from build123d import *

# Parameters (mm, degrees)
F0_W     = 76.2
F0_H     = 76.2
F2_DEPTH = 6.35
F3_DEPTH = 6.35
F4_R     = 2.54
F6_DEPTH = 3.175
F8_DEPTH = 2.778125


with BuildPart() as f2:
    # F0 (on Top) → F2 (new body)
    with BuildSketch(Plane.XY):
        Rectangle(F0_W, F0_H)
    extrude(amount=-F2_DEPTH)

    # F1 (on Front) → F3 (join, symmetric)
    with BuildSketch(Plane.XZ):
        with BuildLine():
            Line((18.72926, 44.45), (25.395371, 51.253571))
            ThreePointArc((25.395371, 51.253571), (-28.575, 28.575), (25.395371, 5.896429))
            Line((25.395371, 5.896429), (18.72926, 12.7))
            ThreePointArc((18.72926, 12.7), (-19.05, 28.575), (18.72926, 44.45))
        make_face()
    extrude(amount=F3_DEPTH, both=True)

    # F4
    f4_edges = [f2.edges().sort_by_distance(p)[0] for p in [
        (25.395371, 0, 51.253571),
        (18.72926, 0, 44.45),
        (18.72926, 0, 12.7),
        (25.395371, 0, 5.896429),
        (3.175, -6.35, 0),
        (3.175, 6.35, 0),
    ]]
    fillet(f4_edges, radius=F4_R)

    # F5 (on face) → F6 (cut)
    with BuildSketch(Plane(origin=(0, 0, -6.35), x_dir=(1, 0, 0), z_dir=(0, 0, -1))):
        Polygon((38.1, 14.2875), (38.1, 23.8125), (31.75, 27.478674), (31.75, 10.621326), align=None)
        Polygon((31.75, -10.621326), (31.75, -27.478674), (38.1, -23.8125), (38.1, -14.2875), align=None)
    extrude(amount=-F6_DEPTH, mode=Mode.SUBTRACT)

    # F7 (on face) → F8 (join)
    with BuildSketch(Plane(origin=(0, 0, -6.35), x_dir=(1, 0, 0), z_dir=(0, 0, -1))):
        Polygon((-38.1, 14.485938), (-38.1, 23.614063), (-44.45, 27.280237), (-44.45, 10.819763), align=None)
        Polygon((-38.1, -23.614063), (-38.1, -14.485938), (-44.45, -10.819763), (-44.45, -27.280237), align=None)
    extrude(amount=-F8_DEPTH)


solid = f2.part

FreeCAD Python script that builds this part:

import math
import FreeCAD as App
import Part
import Sketcher

V = App.Vector
Q = App.Units.Quantity


def edges_at(feature, points):
    """Names of the edges that pass closest to the given points."""
    edges = feature.Shape.Edges
    near = lambda p: min(range(len(edges)), key=lambda i: edges[i].distToShape(Part.Vertex(*p))[0])
    return sorted({f"Edge{near(p) + 1}" for p in points})

doc = App.newDocument("Part")
body = doc.addObject("PartDesign::Body", "Body")

# Sketch on XY plane
sketch1 = body.newObject("Sketcher::SketchObject", "Sketch")
sketch1.AttachmentSupport = (doc.getObject("XY_Plane"), [""])
sketch1.MapMode = "FlatFace"
sketch1.addGeometry(Part.LineSegment(V(-38, 38, 0), V(-38, -38, 0)), False)
sketch1.addGeometry(Part.LineSegment(V(-38, -38, 0), V(38, -38, 0)), False)
sketch1.addGeometry(Part.LineSegment(V(38, -38, 0), V(38, 38, 0)), False)
sketch1.addGeometry(Part.LineSegment(V(38, 38, 0), V(-38, 38, 0)), False)
sketch1.addConstraint(Sketcher.Constraint("Coincident", 0, 2, 1, 1))
sketch1.addConstraint(Sketcher.Constraint("Coincident", 1, 2, 2, 1))
sketch1.addConstraint(Sketcher.Constraint("Coincident", 2, 2, 3, 1))
sketch1.addConstraint(Sketcher.Constraint("Coincident", 3, 2, 0, 1))
sketch1.addConstraint(Sketcher.Constraint("Vertical", 0))
sketch1.addConstraint(Sketcher.Constraint("Horizontal", 1))
sketch1.addConstraint(Sketcher.Constraint("Vertical", 2))
sketch1.addConstraint(Sketcher.Constraint("Horizontal", 3))
sketch1.addConstraint(Sketcher.Constraint("Symmetric", 0, 2, 2, 2, -1, 1))
sketch1.addConstraint(Sketcher.Constraint("Equal", 3, 0))
sketch1.addConstraint(Sketcher.Constraint("DistanceX", 1, 1, 1, 2, Q("3 in")))
pad1 = body.newObject("PartDesign::Pad", "Pad")
pad1.Profile = sketch1
pad1.Length = Q("0.25 in")
pad1.Reversed = True

# Sketch on XZ plane
sketch2 = body.newObject("Sketcher::SketchObject", "Sketch001")
sketch2.AttachmentSupport = (doc.getObject("XZ_Plane"), [""])
sketch2.MapMode = "FlatFace"
sketch2.addGeometry(Part.LineSegment(V(19, 44, 0), V(25, 51, 0)), False)
sketch2.addGeometry(Part.ArcOfCircle(Part.Circle(V(3, 29, 0), V(0, 0, 1), 32), math.radians(46), math.radians(314)), False)
sketch2.addGeometry(Part.LineSegment(V(25, 6, 0), V(19, 13, 0)), False)
sketch2.addGeometry(Part.ArcOfCircle(Part.Circle(V(3, 29, 0), V(0, 0, 1), 22), math.radians(46), math.radians(314)), False)
sketch2.addConstraint(Sketcher.Constraint("Coincident", 0, 2, 1, 1))
sketch2.addConstraint(Sketcher.Constraint("Coincident", 1, 2, 2, 1))
sketch2.addConstraint(Sketcher.Constraint("Coincident", 2, 2, 3, 2))
sketch2.addConstraint(Sketcher.Constraint("Coincident", 3, 1, 0, 1))
sketch2.addConstraint(Sketcher.Constraint("Coincident", 3, 3, 1, 3))
sketch2.addConstraint(Sketcher.Constraint("Vertical", 0, 2, 1, 2))
sketch2.addConstraint(Sketcher.Constraint("Vertical", 2, 2, 3, 1))
sketch2.addConstraint(Sketcher.Constraint("Radius", 1, Q("1.25 in")))
sketch2.addConstraint(Sketcher.Constraint("Radius", 3, Q("0.875 in")))
sketch2.addConstraint(Sketcher.Constraint("DistanceY", -1, 1, 2, 2, Q("0.5 in")))
sketch2.addConstraint(Sketcher.Constraint("DistanceY", -1, 1, 3, 1, Q("1.75 in")))
sketch2.addConstraint(Sketcher.Constraint("DistanceX", -1, 1, 1, 3, Q("0.125 in")))
sketch2.addConstraint(Sketcher.Constraint("DistanceX", -1, 1, 0, 2, Q("25.395371 mm")))
pad2 = body.newObject("PartDesign::Pad", "Pad001")
pad2.Profile = sketch2
pad2.Length = Q("0.5 in")
pad2.Midplane = True
doc.recompute()

fillet = body.newObject("PartDesign::Fillet", "Fillet")
fillet.Base = (pad2, edges_at(pad2, [
    (25.395, 0, 51.254),
    (18.729, 0, 44.45),
    (18.729, 0, 12.7),
    (25.395, 0, 5.896),
    (3.175, -6.35, 0),
    (3.175, 6.35, 0),
]))
fillet.Radius = Q("0.1 in")

# Sketch on XY plane
sketch3 = body.newObject("Sketcher::SketchObject", "Sketch002")
sketch3.AttachmentSupport = (doc.getObject("XY_Plane"), [""])
sketch3.MapMode = "FlatFace"
sketch3.AttachmentOffset = App.Placement(V(0, 0, -0.25 * 25.4), App.Rotation())
sketch3.addGeometry(Part.LineSegment(V(38, -14, 0), V(38, -24, 0)), False)
sketch3.addGeometry(Part.LineSegment(V(38, -24, 0), V(32, -27, 0)), False)
sketch3.addGeometry(Part.LineSegment(V(32, -27, 0), V(32, -11, 0)), False)
sketch3.addGeometry(Part.LineSegment(V(32, -11, 0), V(38, -14, 0)), False)
sketch3.addGeometry(Part.LineSegment(V(32, 11, 0), V(32, 27, 0)), False)
sketch3.addGeometry(Part.LineSegment(V(32, 27, 0), V(38, 24, 0)), False)
sketch3.addGeometry(Part.LineSegment(V(38, 24, 0), V(38, 14, 0)), False)
sketch3.addGeometry(Part.LineSegment(V(38, 14, 0), V(32, 11, 0)), False)
sketch3.addConstraint(Sketcher.Constraint("Coincident", 0, 2, 1, 1))
sketch3.addConstraint(Sketcher.Constraint("Coincident", 1, 2, 2, 1))
sketch3.addConstraint(Sketcher.Constraint("Coincident", 2, 2, 3, 1))
sketch3.addConstraint(Sketcher.Constraint("Coincident", 3, 2, 0, 1))
sketch3.addConstraint(Sketcher.Constraint("Coincident", 4, 2, 5, 1))
sketch3.addConstraint(Sketcher.Constraint("Coincident", 5, 2, 6, 1))
sketch3.addConstraint(Sketcher.Constraint("Coincident", 6, 2, 7, 1))
sketch3.addConstraint(Sketcher.Constraint("Coincident", 7, 2, 4, 1))
sketch3.addConstraint(Sketcher.Constraint("Vertical", 0))
sketch3.addConstraint(Sketcher.Constraint("Vertical", 2))
sketch3.addConstraint(Sketcher.Constraint("Vertical", 4))
sketch3.addConstraint(Sketcher.Constraint("Vertical", 6))
sketch3.addConstraint(Sketcher.Constraint("Symmetric", 1, 2, 4, 2, -1))
sketch3.addConstraint(Sketcher.Constraint("Symmetric", 0, 2, 5, 2, -1))
sketch3.addConstraint(Sketcher.Constraint("Parallel", 3, 5))
sketch3.addConstraint(Sketcher.Constraint("Parallel", 1, 7))
sketch3.addConstraint(Sketcher.Constraint("Equal", 2, 4))
sketch3.addConstraint(Sketcher.Constraint("Angle", 1, Q("-150.000001 deg")))
sketch3.addConstraint(Sketcher.Constraint("DistanceX", -1, 1, 0, 2, Q("1.5 in")))
sketch3.addConstraint(Sketcher.Constraint("DistanceY", 2, 2, 4, 2, Q("1.5 in")))
sketch3.addConstraint(Sketcher.Constraint("DistanceY", 0, 2, 0, 1, Q("0.375 in")))
sketch3.addConstraint(Sketcher.Constraint("DistanceX", -1, 1, 1, 2, Q("1.25 in")))
pocket1 = body.newObject("PartDesign::Pocket", "Pocket")
pocket1.Profile = sketch3
pocket1.Length = Q("0.125 in")
pocket1.Reversed = True

# Sketch on XY plane
sketch4 = body.newObject("Sketcher::SketchObject", "Sketch003")
sketch4.AttachmentSupport = (doc.getObject("XY_Plane"), [""])
sketch4.MapMode = "FlatFace"
sketch4.AttachmentOffset = App.Placement(V(0, 0, -0.25 * 25.4), App.Rotation())
sketch4.addGeometry(Part.LineSegment(V(-38, -14, 0), V(-38, -24, 0)), False)
sketch4.addGeometry(Part.LineSegment(V(-38, -24, 0), V(-44, -27, 0)), False)
sketch4.addGeometry(Part.LineSegment(V(-44, -27, 0), V(-44, -11, 0)), False)
sketch4.addGeometry(Part.LineSegment(V(-44, -11, 0), V(-38, -14, 0)), False)
sketch4.addGeometry(Part.LineSegment(V(-38, 24, 0), V(-38, 14, 0)), False)
sketch4.addGeometry(Part.LineSegment(V(-38, 14, 0), V(-44, 11, 0)), False)
sketch4.addGeometry(Part.LineSegment(V(-44, 11, 0), V(-44, 27, 0)), False)
sketch4.addGeometry(Part.LineSegment(V(-44, 27, 0), V(-38, 24, 0)), False)
sketch4.addConstraint(Sketcher.Constraint("Coincident", 0, 2, 1, 1))
sketch4.addConstraint(Sketcher.Constraint("Coincident", 1, 2, 2, 1))
sketch4.addConstraint(Sketcher.Constraint("Coincident", 2, 2, 3, 1))
sketch4.addConstraint(Sketcher.Constraint("Coincident", 3, 2, 0, 1))
sketch4.addConstraint(Sketcher.Constraint("Coincident", 4, 2, 5, 1))
sketch4.addConstraint(Sketcher.Constraint("Coincident", 5, 2, 6, 1))
sketch4.addConstraint(Sketcher.Constraint("Coincident", 6, 2, 7, 1))
sketch4.addConstraint(Sketcher.Constraint("Coincident", 7, 2, 4, 1))
sketch4.addConstraint(Sketcher.Constraint("Vertical", 0))
sketch4.addConstraint(Sketcher.Constraint("Vertical", 2))
sketch4.addConstraint(Sketcher.Constraint("Vertical", 4))
sketch4.addConstraint(Sketcher.Constraint("Vertical", 6))
sketch4.addConstraint(Sketcher.Constraint("Symmetric", 3, 2, 4, 2, -1))
sketch4.addConstraint(Sketcher.Constraint("Symmetric", 2, 2, 5, 2, -1))
sketch4.addConstraint(Sketcher.Constraint("Parallel", 1, 5))
sketch4.addConstraint(Sketcher.Constraint("Parallel", 3, 7))
sketch4.addConstraint(Sketcher.Constraint("Equal", 0, 4))
sketch4.addConstraint(Sketcher.Constraint("Angle", 1, Q("-150.000001 deg")))
sketch4.addConstraint(Sketcher.Constraint("DistanceX", 0, 2, -1, 1, Q("1.5 in")))
sketch4.addConstraint(Sketcher.Constraint("DistanceY", 0, 2, 4, 2, Q("1.5 in")))
sketch4.addConstraint(Sketcher.Constraint("DistanceY", 0, 2, 0, 1, Q("0.359375 in")))
sketch4.addConstraint(Sketcher.Constraint("DistanceX", 1, 2, -1, 1, Q("1.75 in")))
pad3 = body.newObject("PartDesign::Pad", "Pad002")
pad3.Profile = sketch4
pad3.Length = Q("0.109375 in")

doc.recompute()
